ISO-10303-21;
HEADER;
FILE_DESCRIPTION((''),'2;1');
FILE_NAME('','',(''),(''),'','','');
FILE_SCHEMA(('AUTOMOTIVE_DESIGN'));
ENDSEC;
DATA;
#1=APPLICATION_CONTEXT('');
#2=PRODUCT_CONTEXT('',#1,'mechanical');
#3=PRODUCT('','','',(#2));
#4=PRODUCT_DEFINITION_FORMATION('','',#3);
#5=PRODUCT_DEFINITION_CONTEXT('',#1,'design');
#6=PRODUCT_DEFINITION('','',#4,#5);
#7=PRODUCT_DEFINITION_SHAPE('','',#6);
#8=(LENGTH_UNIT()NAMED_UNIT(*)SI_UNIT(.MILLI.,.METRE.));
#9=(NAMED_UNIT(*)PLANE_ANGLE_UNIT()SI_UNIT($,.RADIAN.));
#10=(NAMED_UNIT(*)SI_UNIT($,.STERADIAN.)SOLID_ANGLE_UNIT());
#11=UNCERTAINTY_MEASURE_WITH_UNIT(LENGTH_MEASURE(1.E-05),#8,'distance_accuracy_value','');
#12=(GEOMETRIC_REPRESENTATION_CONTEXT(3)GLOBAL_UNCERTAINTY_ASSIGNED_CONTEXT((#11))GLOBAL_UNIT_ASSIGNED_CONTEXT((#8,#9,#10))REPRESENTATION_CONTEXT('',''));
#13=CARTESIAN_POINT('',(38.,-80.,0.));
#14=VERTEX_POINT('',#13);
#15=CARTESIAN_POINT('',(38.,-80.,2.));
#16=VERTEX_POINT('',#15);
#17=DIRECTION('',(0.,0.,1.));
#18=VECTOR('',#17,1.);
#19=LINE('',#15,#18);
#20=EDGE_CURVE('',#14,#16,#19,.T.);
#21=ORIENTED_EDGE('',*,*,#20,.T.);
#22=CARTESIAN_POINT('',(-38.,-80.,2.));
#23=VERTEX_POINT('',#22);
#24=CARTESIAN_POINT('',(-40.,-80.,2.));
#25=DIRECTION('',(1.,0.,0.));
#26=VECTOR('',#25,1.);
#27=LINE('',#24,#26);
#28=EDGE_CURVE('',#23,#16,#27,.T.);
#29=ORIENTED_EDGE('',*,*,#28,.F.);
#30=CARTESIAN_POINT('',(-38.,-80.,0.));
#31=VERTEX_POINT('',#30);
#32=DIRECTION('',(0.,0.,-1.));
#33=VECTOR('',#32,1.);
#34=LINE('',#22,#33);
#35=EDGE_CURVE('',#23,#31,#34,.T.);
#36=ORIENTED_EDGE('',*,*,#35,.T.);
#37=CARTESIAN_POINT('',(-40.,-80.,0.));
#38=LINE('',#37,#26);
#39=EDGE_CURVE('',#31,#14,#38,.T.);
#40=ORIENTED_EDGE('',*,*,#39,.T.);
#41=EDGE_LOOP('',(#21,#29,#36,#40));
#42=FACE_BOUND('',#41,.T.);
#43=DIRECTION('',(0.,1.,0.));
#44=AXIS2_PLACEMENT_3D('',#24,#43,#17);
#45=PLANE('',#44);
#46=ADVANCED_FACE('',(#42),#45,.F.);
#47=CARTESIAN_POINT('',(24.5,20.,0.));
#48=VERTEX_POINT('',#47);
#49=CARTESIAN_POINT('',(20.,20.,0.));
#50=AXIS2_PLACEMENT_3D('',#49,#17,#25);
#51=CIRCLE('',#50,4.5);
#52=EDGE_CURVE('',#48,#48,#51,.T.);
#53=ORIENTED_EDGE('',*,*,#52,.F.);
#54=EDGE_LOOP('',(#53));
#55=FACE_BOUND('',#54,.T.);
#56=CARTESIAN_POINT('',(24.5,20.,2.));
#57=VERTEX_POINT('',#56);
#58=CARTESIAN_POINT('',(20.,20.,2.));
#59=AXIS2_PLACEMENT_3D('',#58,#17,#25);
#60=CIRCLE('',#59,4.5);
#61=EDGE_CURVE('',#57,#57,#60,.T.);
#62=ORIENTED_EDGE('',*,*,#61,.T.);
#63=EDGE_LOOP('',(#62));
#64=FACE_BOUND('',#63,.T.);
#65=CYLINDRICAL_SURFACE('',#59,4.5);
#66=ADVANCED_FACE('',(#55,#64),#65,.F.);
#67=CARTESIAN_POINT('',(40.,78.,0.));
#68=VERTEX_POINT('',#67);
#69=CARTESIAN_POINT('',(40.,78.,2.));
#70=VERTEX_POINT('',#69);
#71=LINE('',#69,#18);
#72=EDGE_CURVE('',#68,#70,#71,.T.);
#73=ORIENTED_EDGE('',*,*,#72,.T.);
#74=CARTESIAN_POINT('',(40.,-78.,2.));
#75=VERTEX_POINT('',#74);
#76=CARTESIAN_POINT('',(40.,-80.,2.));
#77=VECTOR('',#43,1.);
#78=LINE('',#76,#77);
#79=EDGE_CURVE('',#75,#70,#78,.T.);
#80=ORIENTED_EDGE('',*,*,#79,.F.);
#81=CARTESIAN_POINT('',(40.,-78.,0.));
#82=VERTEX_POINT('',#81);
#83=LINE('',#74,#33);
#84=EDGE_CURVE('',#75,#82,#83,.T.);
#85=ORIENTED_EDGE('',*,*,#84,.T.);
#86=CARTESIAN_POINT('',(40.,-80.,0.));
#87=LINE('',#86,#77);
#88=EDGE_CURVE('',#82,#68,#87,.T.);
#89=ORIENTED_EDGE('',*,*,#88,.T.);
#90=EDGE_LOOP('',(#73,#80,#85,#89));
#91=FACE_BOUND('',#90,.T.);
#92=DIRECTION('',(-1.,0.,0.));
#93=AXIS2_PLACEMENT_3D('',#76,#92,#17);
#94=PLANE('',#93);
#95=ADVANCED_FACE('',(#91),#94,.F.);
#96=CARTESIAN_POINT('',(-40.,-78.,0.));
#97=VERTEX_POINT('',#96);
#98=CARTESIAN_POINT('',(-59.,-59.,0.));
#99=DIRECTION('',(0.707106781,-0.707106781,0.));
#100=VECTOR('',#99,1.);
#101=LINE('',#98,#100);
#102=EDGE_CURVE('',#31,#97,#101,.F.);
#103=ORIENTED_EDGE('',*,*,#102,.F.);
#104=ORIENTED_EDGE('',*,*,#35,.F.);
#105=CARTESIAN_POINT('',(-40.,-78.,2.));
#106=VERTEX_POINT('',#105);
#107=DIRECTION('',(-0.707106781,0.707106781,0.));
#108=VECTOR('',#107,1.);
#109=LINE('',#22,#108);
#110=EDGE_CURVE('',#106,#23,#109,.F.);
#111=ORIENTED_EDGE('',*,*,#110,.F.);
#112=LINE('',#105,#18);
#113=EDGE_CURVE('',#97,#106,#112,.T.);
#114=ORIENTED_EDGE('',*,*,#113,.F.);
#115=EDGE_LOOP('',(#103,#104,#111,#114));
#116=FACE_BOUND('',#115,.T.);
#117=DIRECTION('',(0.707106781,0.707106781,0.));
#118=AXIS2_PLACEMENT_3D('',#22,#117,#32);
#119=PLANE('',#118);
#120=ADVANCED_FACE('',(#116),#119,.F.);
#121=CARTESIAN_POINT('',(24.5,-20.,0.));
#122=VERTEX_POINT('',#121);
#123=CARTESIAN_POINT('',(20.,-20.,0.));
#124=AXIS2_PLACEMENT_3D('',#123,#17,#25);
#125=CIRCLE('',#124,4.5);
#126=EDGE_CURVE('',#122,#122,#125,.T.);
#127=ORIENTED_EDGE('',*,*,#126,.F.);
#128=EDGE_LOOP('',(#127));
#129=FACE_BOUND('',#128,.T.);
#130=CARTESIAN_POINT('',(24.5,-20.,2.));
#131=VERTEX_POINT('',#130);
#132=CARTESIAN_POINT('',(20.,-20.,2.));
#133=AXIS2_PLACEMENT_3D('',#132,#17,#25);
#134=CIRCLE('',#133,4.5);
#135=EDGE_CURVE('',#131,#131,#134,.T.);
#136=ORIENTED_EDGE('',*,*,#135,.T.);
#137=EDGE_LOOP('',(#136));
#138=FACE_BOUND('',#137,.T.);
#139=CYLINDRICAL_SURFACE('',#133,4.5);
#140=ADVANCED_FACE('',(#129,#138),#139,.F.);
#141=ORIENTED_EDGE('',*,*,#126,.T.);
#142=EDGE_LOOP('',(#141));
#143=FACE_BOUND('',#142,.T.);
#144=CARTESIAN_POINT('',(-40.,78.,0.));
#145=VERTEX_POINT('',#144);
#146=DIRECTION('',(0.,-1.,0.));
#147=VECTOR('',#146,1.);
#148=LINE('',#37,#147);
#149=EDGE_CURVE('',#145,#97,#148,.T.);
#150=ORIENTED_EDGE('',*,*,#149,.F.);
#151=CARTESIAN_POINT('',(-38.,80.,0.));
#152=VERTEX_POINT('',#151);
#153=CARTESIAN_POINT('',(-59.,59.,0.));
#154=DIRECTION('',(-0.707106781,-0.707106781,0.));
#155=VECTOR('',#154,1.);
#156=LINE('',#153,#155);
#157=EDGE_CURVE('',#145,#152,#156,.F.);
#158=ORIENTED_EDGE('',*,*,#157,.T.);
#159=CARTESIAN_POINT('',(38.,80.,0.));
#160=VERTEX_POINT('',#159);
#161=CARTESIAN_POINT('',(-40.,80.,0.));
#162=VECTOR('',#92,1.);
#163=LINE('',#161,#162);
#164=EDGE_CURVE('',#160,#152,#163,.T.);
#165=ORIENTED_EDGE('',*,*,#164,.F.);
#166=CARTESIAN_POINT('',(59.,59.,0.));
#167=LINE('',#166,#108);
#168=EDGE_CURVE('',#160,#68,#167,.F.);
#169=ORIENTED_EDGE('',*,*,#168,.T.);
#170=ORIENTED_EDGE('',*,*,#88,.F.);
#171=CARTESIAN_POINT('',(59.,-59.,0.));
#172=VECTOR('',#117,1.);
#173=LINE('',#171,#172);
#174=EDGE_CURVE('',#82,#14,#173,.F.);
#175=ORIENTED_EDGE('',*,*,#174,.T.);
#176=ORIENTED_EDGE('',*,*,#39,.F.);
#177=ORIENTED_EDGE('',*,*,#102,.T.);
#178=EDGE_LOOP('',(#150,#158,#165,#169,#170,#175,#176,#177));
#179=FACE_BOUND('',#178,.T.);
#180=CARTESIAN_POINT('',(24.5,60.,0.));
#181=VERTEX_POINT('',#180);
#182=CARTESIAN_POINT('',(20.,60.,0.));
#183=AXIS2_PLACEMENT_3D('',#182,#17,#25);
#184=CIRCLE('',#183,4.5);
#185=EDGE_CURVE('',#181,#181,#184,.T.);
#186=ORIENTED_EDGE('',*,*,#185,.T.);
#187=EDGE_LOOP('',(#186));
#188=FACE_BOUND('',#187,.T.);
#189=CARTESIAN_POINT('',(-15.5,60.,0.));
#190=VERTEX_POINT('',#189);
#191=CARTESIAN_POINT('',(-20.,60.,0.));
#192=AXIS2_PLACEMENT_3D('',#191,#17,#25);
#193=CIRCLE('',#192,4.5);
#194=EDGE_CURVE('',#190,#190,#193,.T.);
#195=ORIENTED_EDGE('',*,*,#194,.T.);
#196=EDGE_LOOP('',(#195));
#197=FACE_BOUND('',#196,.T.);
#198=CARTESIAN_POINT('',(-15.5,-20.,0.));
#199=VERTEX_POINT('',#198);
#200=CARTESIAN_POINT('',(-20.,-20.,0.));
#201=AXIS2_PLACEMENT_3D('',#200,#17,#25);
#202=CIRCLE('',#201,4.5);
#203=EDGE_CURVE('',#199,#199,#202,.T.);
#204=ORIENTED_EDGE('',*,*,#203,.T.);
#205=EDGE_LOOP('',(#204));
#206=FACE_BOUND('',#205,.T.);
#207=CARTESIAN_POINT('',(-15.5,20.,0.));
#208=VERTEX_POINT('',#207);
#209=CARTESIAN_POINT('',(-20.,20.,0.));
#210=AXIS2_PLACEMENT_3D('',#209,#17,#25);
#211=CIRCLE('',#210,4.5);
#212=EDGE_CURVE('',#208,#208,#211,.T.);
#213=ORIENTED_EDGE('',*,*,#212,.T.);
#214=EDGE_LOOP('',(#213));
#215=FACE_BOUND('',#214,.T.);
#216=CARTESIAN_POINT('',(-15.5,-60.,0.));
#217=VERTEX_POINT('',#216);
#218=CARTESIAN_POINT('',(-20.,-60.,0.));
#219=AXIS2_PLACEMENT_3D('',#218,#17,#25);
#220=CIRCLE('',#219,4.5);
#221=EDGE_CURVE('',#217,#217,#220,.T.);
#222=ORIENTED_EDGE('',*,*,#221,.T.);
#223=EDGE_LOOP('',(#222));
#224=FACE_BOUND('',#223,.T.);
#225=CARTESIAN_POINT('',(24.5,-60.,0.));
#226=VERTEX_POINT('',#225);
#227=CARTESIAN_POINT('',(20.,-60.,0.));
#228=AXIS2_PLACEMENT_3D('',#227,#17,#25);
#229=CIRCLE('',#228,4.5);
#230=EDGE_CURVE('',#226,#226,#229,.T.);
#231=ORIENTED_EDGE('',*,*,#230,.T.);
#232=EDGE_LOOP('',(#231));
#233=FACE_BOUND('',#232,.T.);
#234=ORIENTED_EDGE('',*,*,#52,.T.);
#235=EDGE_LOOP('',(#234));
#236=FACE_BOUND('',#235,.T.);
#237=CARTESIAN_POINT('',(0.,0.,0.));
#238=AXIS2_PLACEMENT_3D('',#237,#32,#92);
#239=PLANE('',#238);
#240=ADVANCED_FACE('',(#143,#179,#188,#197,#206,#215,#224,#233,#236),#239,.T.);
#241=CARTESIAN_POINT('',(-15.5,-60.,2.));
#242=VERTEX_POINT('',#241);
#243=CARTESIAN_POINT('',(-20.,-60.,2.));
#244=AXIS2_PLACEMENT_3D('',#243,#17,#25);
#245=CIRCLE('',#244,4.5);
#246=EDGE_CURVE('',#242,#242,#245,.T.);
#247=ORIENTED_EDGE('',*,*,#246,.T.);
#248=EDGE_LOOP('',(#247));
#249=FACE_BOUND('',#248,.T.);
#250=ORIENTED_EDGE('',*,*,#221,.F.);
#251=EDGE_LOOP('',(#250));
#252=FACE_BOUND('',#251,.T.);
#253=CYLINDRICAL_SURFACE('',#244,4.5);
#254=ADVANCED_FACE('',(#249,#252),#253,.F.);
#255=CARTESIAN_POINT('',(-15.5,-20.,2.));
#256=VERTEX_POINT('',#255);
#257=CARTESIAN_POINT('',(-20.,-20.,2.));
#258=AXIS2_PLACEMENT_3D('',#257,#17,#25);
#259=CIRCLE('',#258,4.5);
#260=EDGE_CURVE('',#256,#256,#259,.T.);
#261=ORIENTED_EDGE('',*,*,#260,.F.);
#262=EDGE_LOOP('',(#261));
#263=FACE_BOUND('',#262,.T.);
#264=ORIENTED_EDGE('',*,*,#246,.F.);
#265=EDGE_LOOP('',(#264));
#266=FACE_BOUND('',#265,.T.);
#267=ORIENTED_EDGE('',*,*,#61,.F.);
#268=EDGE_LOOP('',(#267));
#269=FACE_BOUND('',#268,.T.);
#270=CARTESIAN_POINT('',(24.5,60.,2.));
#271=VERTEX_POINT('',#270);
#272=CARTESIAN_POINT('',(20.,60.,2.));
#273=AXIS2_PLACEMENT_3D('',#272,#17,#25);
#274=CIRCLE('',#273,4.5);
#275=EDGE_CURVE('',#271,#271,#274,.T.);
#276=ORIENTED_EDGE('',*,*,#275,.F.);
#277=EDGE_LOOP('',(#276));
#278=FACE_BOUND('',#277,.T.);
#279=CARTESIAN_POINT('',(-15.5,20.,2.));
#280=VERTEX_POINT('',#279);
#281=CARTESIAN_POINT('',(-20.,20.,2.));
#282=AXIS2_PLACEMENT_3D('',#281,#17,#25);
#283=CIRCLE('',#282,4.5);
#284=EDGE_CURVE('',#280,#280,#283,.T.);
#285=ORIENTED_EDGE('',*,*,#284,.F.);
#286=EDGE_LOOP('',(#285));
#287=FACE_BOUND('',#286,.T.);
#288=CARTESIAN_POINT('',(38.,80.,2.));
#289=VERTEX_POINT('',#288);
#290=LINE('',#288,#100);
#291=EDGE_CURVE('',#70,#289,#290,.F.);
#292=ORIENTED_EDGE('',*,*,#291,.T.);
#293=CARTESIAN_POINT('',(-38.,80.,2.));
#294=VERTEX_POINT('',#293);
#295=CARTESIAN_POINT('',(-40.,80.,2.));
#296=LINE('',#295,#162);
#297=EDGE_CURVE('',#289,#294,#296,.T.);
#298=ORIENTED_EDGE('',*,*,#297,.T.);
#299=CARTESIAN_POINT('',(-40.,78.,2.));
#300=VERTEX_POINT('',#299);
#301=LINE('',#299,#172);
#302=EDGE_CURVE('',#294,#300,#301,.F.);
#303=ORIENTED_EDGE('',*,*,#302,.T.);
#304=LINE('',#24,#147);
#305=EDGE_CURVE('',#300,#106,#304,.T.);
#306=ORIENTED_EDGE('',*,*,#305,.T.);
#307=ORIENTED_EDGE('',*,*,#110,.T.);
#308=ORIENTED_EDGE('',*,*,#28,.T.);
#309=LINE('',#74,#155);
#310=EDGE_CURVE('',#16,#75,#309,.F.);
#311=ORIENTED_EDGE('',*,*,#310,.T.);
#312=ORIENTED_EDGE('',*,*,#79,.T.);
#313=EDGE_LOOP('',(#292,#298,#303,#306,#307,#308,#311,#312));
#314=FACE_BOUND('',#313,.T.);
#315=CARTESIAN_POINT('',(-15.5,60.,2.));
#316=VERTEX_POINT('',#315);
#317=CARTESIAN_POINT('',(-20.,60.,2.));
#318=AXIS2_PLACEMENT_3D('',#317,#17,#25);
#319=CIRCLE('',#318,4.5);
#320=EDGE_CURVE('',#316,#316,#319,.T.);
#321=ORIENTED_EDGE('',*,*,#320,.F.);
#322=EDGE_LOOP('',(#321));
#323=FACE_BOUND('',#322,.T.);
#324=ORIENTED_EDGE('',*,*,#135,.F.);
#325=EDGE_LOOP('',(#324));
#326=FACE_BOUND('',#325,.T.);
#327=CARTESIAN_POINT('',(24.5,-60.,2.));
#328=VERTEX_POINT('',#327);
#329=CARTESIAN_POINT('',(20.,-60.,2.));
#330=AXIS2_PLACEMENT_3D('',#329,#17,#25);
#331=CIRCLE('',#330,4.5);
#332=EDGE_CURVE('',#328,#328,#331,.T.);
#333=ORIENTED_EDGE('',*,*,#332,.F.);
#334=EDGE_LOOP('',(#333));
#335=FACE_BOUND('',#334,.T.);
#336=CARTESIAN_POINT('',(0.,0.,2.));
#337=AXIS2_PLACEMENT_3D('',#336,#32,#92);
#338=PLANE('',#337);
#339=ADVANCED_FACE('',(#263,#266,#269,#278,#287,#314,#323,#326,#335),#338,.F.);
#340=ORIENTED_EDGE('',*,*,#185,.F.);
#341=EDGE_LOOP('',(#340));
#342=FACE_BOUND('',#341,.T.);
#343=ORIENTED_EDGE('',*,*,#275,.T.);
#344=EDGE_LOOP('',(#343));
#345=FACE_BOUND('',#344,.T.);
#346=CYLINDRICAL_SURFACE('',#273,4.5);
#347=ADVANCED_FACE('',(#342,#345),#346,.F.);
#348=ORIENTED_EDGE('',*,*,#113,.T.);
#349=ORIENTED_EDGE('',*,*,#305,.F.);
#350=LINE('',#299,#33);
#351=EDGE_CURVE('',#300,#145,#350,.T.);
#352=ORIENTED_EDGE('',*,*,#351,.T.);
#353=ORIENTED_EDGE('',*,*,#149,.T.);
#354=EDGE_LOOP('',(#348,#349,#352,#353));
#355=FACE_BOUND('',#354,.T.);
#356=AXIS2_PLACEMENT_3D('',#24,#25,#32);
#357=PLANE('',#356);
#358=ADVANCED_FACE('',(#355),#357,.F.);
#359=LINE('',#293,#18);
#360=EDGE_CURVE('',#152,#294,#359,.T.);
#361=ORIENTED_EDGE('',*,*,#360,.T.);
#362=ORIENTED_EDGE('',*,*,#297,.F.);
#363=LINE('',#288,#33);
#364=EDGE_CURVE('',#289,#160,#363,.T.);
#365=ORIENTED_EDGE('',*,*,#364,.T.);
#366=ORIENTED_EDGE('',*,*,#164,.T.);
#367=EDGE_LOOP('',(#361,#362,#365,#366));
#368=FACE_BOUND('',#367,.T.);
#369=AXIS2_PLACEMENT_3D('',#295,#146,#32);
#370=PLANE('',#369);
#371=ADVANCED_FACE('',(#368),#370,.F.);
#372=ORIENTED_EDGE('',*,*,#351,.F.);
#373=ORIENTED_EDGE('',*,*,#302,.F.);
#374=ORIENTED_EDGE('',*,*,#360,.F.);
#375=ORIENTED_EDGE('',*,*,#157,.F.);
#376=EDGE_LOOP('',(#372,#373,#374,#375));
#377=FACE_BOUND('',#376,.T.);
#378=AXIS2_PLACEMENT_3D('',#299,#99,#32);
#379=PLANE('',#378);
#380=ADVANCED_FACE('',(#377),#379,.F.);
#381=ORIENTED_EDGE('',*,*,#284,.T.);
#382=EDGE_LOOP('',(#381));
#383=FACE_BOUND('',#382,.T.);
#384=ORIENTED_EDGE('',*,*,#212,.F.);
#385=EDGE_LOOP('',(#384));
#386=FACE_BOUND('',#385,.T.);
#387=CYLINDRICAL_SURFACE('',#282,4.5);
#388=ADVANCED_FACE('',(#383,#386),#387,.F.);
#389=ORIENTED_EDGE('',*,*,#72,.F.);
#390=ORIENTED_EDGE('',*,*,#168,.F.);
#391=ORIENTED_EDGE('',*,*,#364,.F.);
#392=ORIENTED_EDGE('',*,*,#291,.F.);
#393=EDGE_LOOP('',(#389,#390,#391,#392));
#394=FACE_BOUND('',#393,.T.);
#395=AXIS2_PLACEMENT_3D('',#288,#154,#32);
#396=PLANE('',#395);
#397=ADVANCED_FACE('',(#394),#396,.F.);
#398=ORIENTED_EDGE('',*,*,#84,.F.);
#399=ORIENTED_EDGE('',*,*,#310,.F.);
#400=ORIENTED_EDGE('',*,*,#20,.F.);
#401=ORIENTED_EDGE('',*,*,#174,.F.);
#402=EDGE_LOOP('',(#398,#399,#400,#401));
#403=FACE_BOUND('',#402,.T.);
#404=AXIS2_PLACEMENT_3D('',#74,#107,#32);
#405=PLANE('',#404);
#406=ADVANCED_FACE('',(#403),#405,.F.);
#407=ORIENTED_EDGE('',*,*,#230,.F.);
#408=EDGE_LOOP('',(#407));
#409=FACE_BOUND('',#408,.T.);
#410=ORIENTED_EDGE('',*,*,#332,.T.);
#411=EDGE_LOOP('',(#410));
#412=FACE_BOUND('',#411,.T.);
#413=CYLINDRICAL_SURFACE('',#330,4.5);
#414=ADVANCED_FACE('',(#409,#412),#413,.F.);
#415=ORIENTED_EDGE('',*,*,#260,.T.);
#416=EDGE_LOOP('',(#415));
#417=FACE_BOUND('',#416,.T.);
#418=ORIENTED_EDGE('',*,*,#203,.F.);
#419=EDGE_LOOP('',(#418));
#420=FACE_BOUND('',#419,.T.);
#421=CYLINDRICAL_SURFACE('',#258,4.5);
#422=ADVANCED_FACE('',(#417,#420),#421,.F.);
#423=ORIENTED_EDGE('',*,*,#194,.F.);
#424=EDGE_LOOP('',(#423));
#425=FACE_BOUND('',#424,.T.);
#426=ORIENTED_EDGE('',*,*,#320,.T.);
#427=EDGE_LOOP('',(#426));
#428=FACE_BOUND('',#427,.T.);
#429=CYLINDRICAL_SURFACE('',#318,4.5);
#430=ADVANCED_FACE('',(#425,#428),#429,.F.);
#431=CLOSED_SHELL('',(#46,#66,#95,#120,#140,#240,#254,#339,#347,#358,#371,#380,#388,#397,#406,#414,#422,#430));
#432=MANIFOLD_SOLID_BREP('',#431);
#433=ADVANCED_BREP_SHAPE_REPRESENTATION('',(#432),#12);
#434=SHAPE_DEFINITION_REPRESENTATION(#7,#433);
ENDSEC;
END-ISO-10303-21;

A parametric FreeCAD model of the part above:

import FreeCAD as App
import Part
import Sketcher
Q = App.Units.Quantity


def edges_at(feature, points):
    """Names of the edges that pass closest to the given points."""
    edges = feature.Shape.Edges
    near = lambda p: min(range(len(edges)), key=lambda i: edges[i].distToShape(Part.Vertex(*p))[0])
    return sorted({f"Edge{near(p) + 1}" for p in points})


def add_polygon(sketch, points):
    """Adds a closed chain of lines whose ends are joined by coincident constraints."""
    first, n = sketch.GeometryCount, len(points)
    for a, b in zip(points, points[1:] + points[:1]):
        sketch.addGeometry(Part.LineSegment(App.Vector(*a, 0), App.Vector(*b, 0)), False)
    for i in range(n):
        sketch.addConstraint(Sketcher.Constraint("Coincident", first + i, 2, first + (i + 1) % n, 1))

doc = App.newDocument("Part")
body = doc.addObject("PartDesign::Body", "Body")

sketch1 = body.newObject("Sketcher::SketchObject", "Sketch")
sketch1.AttachmentSupport = (doc.getObject("XY_Plane"), [""])
sketch1.MapMode = "FlatFace"
add_polygon(sketch1, [(-40, 80), (-40, -80), (40, -80), (40, 80)])
sketch1.addConstraint([
    Sketcher.Constraint("Vertical", 0),
    Sketcher.Constraint("Horizontal", 1),
    Sketcher.Constraint("Vertical", 2),
    Sketcher.Constraint("Horizontal", 3),
    Sketcher.Constraint("Symmetric", 0, 2, 2, 2, -1, 1),
    Sketcher.Constraint("DistanceX", 1, 1, 1, 2, Q("80 mm")),
    Sketcher.Constraint("DistanceY", 0, 2, 0, 1, Q("160 mm")),
])
pad1 = body.newObject("PartDesign::Pad", "Pad")
pad1.Profile = sketch1
pad1.Length = 2
doc.recompute()

chamfer = body.newObject("PartDesign::Chamfer", "Chamfer")
chamfer.Base = (pad1, edges_at(pad1, [
    (40, -80, 1),
    (-40, -80, 1),
    (-40, 80, 1),
    (40, 80, 1),
]))
chamfer.Size = 2

sketch2 = body.newObject("Sketcher::SketchObject", "Sketch001")
sketch2.AttachmentSupport = (doc.getObject("XY_Plane"), [""])
sketch2.MapMode = "FlatFace"
sketch2.AttachmentOffset = App.Placement(App.Vector(0, 0, 2), App.Rotation())
sketch2.addGeometry([
    Part.Circle(App.Vector(-20, 20, 0), App.Vector(0, 0, 1), 4.5),
    Part.Circle(App.Vector(20, 20, 0), App.Vector(0, 0, 1), 4.5),
    Part.Circle(App.Vector(-20, -20, 0), App.Vector(0, 0, 1), 4.5),
    Part.Circle(App.Vector(20, -20, 0), App.Vector(0, 0, 1), 4.5),
    Part.Circle(App.Vector(-20, 60, 0), App.Vector(0, 0, 1), 4.5),
    Part.Circle(App.Vector(20, 60, 0), App.Vector(0, 0, 1), 4.5),
    Part.Circle(App.Vector(20, -60, 0), App.Vector(0, 0, 1), 4.5),
    Part.Circle(App.Vector(-20, -60, 0), App.Vector(0, 0, 1), 4.5),
], False)
sketch2.addConstraint([
    Sketcher.Constraint("Equal", 0, 1),
    Sketcher.Constraint("Equal", 1, 2),
    Sketcher.Constraint("Equal", 2, 3),
    Sketcher.Constraint("Equal", 3, 4),
    Sketcher.Constraint("Equal", 4, 5),
    Sketcher.Constraint("Equal", 5, 6),
    Sketcher.Constraint("Equal", 6, 7),
    Sketcher.Constraint("Symmetric", 1, 3, 2, 3, -1, 1),
    Sketcher.Constraint("Symmetric", 0, 3, 3, 3, -1, 1),
    Sketcher.Constraint("Symmetric", 4, 3, 6, 3, -1, 1),
    Sketcher.Constraint("Symmetric", 5, 3, 7, 3, -1, 1),
    Sketcher.Constraint("Symmetric", 0, 3, 1, 3, -2),
    Sketcher.Constraint("Symmetric", 4, 3, 5, 3, -2),
    Sketcher.Constraint("Vertical", 2, 3, 4, 3),
    Sketcher.Constraint("Diameter", 0, Q("9 mm")),
    Sketcher.Constraint("DistanceX", 0, 3, -1, 1, Q("20 mm")),
    Sketcher.Constraint("DistanceY", -1, 1, 0, 3, Q("20 mm")),
    Sketcher.Constraint("DistanceY", -1, 1, 4, 3, Q("60 mm")),
])
doc.recompute()
hole = body.newObject("PartDesign::Hole", "Hole")
hole.Profile = sketch2
hole.ThreadType = "None"
hole.Diameter = 9
hole.DepthType = "ThroughAll"

doc.recompute()
